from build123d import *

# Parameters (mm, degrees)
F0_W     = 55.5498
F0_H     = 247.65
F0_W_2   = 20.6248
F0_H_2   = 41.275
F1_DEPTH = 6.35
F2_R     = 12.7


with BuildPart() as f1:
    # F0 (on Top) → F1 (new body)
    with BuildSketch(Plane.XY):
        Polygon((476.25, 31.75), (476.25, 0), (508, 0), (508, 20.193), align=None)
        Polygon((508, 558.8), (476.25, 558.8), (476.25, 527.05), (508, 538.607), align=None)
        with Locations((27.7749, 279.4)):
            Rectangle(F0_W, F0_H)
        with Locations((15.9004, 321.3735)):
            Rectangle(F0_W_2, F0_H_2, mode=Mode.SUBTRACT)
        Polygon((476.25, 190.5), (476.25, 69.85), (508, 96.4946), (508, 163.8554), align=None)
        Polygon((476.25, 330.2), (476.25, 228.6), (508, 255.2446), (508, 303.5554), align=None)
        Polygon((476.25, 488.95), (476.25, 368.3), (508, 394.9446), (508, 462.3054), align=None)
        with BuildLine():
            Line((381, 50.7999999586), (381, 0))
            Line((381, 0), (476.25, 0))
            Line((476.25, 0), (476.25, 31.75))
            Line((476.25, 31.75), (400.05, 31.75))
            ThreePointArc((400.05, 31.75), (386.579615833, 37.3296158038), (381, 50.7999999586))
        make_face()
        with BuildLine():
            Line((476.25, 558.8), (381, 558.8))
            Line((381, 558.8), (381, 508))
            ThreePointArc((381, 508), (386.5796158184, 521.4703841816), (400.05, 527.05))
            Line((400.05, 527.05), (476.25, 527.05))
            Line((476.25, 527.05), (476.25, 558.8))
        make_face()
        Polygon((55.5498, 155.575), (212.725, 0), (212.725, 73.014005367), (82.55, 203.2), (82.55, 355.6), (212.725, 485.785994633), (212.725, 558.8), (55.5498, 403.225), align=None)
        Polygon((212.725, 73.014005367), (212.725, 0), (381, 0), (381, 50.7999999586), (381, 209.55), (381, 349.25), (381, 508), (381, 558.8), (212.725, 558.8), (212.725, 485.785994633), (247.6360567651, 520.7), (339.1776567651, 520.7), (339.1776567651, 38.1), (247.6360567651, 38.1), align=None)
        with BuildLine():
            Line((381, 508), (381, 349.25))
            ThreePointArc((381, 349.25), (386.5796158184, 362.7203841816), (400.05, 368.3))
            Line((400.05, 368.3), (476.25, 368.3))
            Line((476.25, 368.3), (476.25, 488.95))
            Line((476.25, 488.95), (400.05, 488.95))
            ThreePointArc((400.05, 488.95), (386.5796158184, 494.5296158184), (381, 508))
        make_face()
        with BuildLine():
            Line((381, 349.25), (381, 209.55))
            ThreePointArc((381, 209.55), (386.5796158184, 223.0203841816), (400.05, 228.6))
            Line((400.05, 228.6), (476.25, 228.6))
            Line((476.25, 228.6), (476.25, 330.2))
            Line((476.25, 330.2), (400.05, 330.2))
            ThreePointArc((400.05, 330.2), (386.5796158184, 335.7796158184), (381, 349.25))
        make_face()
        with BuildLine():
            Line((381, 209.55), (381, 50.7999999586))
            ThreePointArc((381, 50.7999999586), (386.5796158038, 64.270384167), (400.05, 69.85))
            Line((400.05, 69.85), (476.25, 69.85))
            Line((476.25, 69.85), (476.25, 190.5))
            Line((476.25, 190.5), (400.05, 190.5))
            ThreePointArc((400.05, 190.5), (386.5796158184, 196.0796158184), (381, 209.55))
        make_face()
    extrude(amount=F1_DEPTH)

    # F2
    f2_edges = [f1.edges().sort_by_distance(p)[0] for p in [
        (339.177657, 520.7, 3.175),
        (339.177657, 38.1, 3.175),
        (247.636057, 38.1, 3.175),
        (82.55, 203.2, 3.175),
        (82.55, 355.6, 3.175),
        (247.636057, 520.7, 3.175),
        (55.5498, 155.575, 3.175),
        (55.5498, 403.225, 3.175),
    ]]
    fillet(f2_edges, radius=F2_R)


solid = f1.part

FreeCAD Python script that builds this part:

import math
import FreeCAD as App
import Part
import Sketcher
from FreeCAD import Vector
Q = App.Units.Quantity


def edges_at(feature, points):
    """Names of the edges that pass closest to the given points."""
    edges = feature.Shape.Edges
    near = lambda p: min(range(len(edges)), key=lambda i: edges[i].distToShape(Part.Vertex(*p))[0])
    return sorted({f"Edge{near(p) + 1}" for p in points})

doc = App.newDocument("Part")
body = doc.addObject("PartDesign::Body", "Body")

# Sketch on XY plane
sketch1 = doc.addObject("Sketcher::SketchObject", "Sketch")
body.addObject(sketch1)
sketch1.AttachmentSupport = (doc.XY_Plane, [""])
sketch1.MapMode = "FlatFace"
sketch1.addGeometry([
    Part.LineSegment(Vector(508, 0, 0), Vector(508, 20.193, 0)),  # 0
    Part.LineSegment(Vector(508, 20.193, 0), Vector(476.25, 31.75, 0)),  # 1
    Part.LineSegment(Vector(476.25, 31.75, 0), Vector(400.05, 31.75, 0)),  # 2
    Part.ArcOfCircle(Part.Circle(Vector(400.05, 50.8, 0), Vector(0, 0, 1), 19.05), math.radians(-180), math.radians(-90)),  # 3
    Part.ArcOfCircle(Part.Circle(Vector(400.05, 50.8, 0), Vector(0, 0, 1), 19.05), math.radians(90), math.radians(180)),  # 4
    Part.LineSegment(Vector(400.05, 69.85, 0), Vector(476.25, 69.85, 0)),  # 5
    Part.LineSegment(Vector(476.25, 69.85, 0), Vector(508, 96.4946, 0)),  # 6
    Part.LineSegment(Vector(508, 96.4946, 0), Vector(508, 163.8554, 0)),  # 7
    Part.LineSegment(Vector(508, 163.8554, 0), Vector(476.25, 190.5, 0)),  # 8
    Part.LineSegment(Vector(476.25, 190.5, 0), Vector(400.05, 190.5, 0)),  # 9
    Part.ArcOfCircle(Part.Circle(Vector(400.05, 209.55, 0), Vector(0, 0, 1), 19.05), math.radians(180), math.radians(270)),  # 10
    Part.ArcOfCircle(Part.Circle(Vector(400.05, 209.55, 0), Vector(0, 0, 1), 19.05), math.radians(90), math.radians(180)),  # 11
    Part.LineSegment(Vector(400.05, 228.6, 0), Vector(476.25, 228.6, 0)),  # 12
    Part.LineSegment(Vector(476.25, 228.6, 0), Vector(508, 255.2446, 0)),  # 13
    Part.LineSegment(Vector(508, 255.2446, 0), Vector(508, 303.5554, 0)),  # 14
    Part.LineSegment(Vector(508, 303.5554, 0), Vector(476.25, 330.2, 0)),  # 15
    Part.LineSegment(Vector(476.25, 330.2, 0), Vector(400.05, 330.2, 0)),  # 16
    Part.ArcOfCircle(Part.Circle(Vector(400.05, 349.25, 0), Vector(0, 0, 1), 19.05), math.radians(180), math.radians(270)),  # 17
    Part.ArcOfCircle(Part.Circle(Vector(400.05, 349.25, 0), Vector(0, 0, 1), 19.05), math.radians(90), math.radians(180)),  # 18
    Part.LineSegment(Vector(400.05, 368.3, 0), Vector(476.25, 368.3, 0)),  # 19
    Part.LineSegment(Vector(476.25, 368.3, 0), Vector(508, 394.9446, 0)),  # 20
    Part.LineSegment(Vector(508, 394.9446, 0), Vector(508, 462.3054, 0)),  # 21
    Part.LineSegment(Vector(508, 462.3054, 0), Vector(476.25, 488.95, 0)),  # 22
    Part.LineSegment(Vector(476.25, 488.95, 0), Vector(400.05, 488.95, 0)),  # 23
    Part.ArcOfCircle(Part.Circle(Vector(400.05, 508, 0), Vector(0, 0, 1), 19.05), math.radians(180), math.radians(270)),  # 24
    Part.ArcOfCircle(Part.Circle(Vector(400.05, 508, 0), Vector(0, 0, 1), 19.05), math.radians(90), math.radians(180)),  # 25
    Part.LineSegment(Vector(400.05, 527.05, 0), Vector(476.25, 527.05, 0)),  # 26
    Part.LineSegment(Vector(476.25, 527.05, 0), Vector(508, 538.607, 0)),  # 27
    Part.LineSegment(Vector(508, 538.607, 0), Vector(508, 558.8, 0)),  # 28
    Part.LineSegment(Vector(508, 558.8, 0), Vector(212.725, 558.8, 0)),  # 29
    Part.LineSegment(Vector(212.725, 558.8, 0), Vector(55.5498, 403.225, 0)),  # 30
    Part.LineSegment(Vector(55.5498, 403.225, 0), Vector(0, 403.225, 0)),  # 31
    Part.LineSegment(Vector(0, 403.225, 0), Vector(0, 155.575, 0)),  # 32
    Part.LineSegment(Vector(0, 155.575, 0), Vector(55.5498, 155.575, 0)),  # 33
    Part.LineSegment(Vector(55.5498, 155.575, 0), Vector(212.725, 0, 0)),  # 34
    Part.LineSegment(Vector(212.725, 0, 0), Vector(508, 0, 0)),  # 35
    Part.LineSegment(Vector(247.636057, 38.1, 0), Vector(82.55, 203.2, 0)),  # 36
    Part.LineSegment(Vector(82.55, 203.2, 0), Vector(82.55, 355.6, 0)),  # 37
    Part.LineSegment(Vector(82.55, 355.6, 0), Vector(247.636057, 520.7, 0)),  # 38
    Part.LineSegment(Vector(247.636057, 520.7, 0), Vector(339.177657, 520.7, 0)),  # 39
    Part.LineSegment(Vector(339.177657, 520.7, 0), Vector(339.177657, 38.1, 0)),  # 40
    Part.LineSegment(Vector(339.177657, 38.1, 0), Vector(247.636057, 38.1, 0)),  # 41
    Part.LineSegment(Vector(26.2128, 342.011, 0), Vector(26.2128, 300.736, 0)),  # 42
    Part.LineSegment(Vector(26.2128, 300.736, 0), Vector(5.588, 300.736, 0)),  # 43
    Part.LineSegment(Vector(5.588, 300.736, 0), Vector(5.588, 342.011, 0)),  # 44
    Part.LineSegment(Vector(5.588, 342.011, 0), Vector(26.2128, 342.011, 0)),  # 45
], False)
sketch1.addConstraint([
    Sketcher.Constraint("Coincident", 0, 2, 1, 1),
    Sketcher.Constraint("Coincident", 1, 2, 2, 1),
    Sketcher.Constraint("Tangent", 2, 2, 3, 2),
    Sketcher.Constraint("Tangent", 3, 1, 4, 2),
    Sketcher.Constraint("Tangent", 4, 1, 5, 1),
    Sketcher.Constraint("Coincident", 5, 2, 6, 1),
    Sketcher.Constraint("Coincident", 6, 2, 7, 1),
    Sketcher.Constraint("Coincident", 7, 2, 8, 1),
    Sketcher.Constraint("Coincident", 8, 2, 9, 1),
    Sketcher.Constraint("Tangent", 9, 2, 10, 2),
    Sketcher.Constraint("Tangent", 10, 1, 11, 2),
    Sketcher.Constraint("Tangent", 11, 1, 12, 1),
    Sketcher.Constraint("Coincident", 12, 2, 13, 1),
    Sketcher.Constraint("Coincident", 13, 2, 14, 1),
    Sketcher.Constraint("Coincident", 14, 2, 15, 1),
    Sketcher.Constraint("Coincident", 15, 2, 16, 1),
    Sketcher.Constraint("Tangent", 16, 2, 17, 2),
    Sketcher.Constraint("Tangent", 17, 1, 18, 2),
    Sketcher.Constraint("Tangent", 18, 1, 19, 1),
    Sketcher.Constraint("Coincident", 19, 2, 20, 1),
    Sketcher.Constraint("Coincident", 20, 2, 21, 1),
    Sketcher.Constraint("Coincident", 21, 2, 22, 1),
    Sketcher.Constraint("Coincident", 22, 2, 23, 1),
    Sketcher.Constraint("Tangent", 23, 2, 24, 2),
    Sketcher.Constraint("Tangent", 24, 1, 25, 2),
    Sketcher.Constraint("Tangent", 25, 1, 26, 1),
    Sketcher.Constraint("Coincident", 26, 2, 27, 1),
    Sketcher.Constraint("Coincident", 27, 2, 28, 1),
    Sketcher.Constraint("Coincident", 28, 2, 29, 1),
    Sketcher.Constraint("Coincident", 29, 2, 30, 1),
    Sketcher.Constraint("Coincident", 30, 2, 31, 1),
    Sketcher.Constraint("Coincident", 31, 2, 32, 1),
    Sketcher.Constraint("Coincident", 32, 2, 33, 1),
    Sketcher.Constraint("Coincident", 33, 2, 34, 1),
    Sketcher.Constraint("Coincident", 34, 2, 35, 1),
    Sketcher.Constraint("Coincident", 35, 2, 0, 1),
    Sketcher.Constraint("Coincident", 36, 2, 37, 1),
    Sketcher.Constraint("Coincident", 37, 2, 38, 1),
    Sketcher.Constraint("Coincident", 38, 2, 39, 1),
    Sketcher.Constraint("Coincident", 39, 2, 40, 1),
    Sketcher.Constraint("Coincident", 40, 2, 41, 1),
    Sketcher.Constraint("Coincident", 41, 2, 36, 1),
    Sketcher.Constraint("Coincident", 42, 2, 43, 1),
    Sketcher.Constraint("Coincident", 43, 2, 44, 1),
    Sketcher.Constraint("Coincident", 44, 2, 45, 1),
    Sketcher.Constraint("Coincident", 45, 2, 42, 1),
    Sketcher.Constraint("Vertical", 0),
    Sketcher.Constraint("Horizontal", 2),
    Sketcher.Constraint("Horizontal", 5),
    Sketcher.Constraint("Vertical", 7),
    Sketcher.Constraint("Horizontal", 9),
    Sketcher.Constraint("Horizontal", 12),
    Sketcher.Constraint("Vertical", 14),
    Sketcher.Constraint("Horizontal", 16),
    Sketcher.Constraint("Horizontal", 19),
    Sketcher.Constraint("Vertical", 21),
    Sketcher.Constraint("Horizontal", 23),
    Sketcher.Constraint("Horizontal", 26),
    Sketcher.Constraint("Vertical", 28),
    Sketcher.Constraint("Horizontal", 29),
    Sketcher.Constraint("Horizontal", 31),
    Sketcher.Constraint("Vertical", 32),
    Sketcher.Constraint("Horizontal", 33),
    Sketcher.Constraint("Horizontal", 35),
    Sketcher.Constraint("Vertical", 37),
    Sketcher.Constraint("Horizontal", 39),
    Sketcher.Constraint("Vertical", 40),
    Sketcher.Constraint("Horizontal", 41),
    Sketcher.Constraint("Vertical", 42),
    Sketcher.Constraint("Horizontal", 43),
    Sketcher.Constraint("Vertical", 44),
    Sketcher.Constraint("Horizontal", 45),
    Sketcher.Constraint("Equal", 3, 4),
    Sketcher.Constraint("Equal", 4, 10),
    Sketcher.Constraint("Equal", 10, 11),
    Sketcher.Constraint("Equal", 11, 17),
    Sketcher.Constraint("Equal", 17, 18),
    Sketcher.Constraint("Equal", 18, 24),
    Sketcher.Constraint("Equal", 24, 25),
    Sketcher.Constraint("PointOnObject", 31, 2, -2),
    Sketcher.Constraint("PointOnObject", 34, 2, -1),
    Sketcher.Constraint("Parallel", 6, 13),
    Sketcher.Constraint("Parallel", 8, 15),
    Sketcher.Constraint("Parallel", 13, 20),
    Sketcher.Constraint("Parallel", 15, 22),
    Sketcher.Constraint("Horizontal", 4, 3, 3, 1),
    Sketcher.Constraint("Horizontal", 11, 3, 10, 1),
    Sketcher.Constraint("Horizontal", 18, 3, 17, 1),
    Sketcher.Constraint("Horizontal", 25, 3, 24, 1),
    Sketcher.Constraint("Vertical", 4, 3, 10, 3),
    Sketcher.Constraint("Vertical", 11, 3, 17, 3),
    Sketcher.Constraint("Vertical", 18, 3, 24, 3),
    Sketcher.Constraint("Vertical", 1, 2, 5, 2),
    Sketcher.Constraint("Vertical", 0, 2, 6, 2),
    Sketcher.Constraint("Vertical", 5, 2, 8, 2),
    Sketcher.Constraint("Vertical", 8, 2, 12, 2),
    Sketcher.Constraint("Vertical", 7, 2, 13, 2),
    Sketcher.Constraint("Vertical", 12, 2, 15, 2),
    Sketcher.Constraint("Vertical", 15, 2, 19, 2),
    Sketcher.Constraint("Vertical", 14, 2, 20, 2),
    Sketcher.Constraint("Vertical", 19, 2, 22, 2),
    Sketcher.Constraint("Vertical", 22, 2, 26, 2),
    Sketcher.Constraint("Vertical", 21, 2, 27, 2),
    Sketcher.Constraint("Vertical", 30, 2, 33, 2),
    Sketcher.Constraint("Vertical", 29, 2, 34, 2),
    Sketcher.Constraint("Vertical", 38, 2, 41, 2),
    Sketcher.Constraint("Equal", 7, 21),
    Sketcher.Constraint("Equal", 0, 28),
    Sketcher.Constraint("Equal", 6, 8),
    Sketcher.Constraint("Equal", 1, 27),
    Sketcher.Constraint("Equal", 30, 34),
    Sketcher.Constraint("Equal", 36, 38),
    Sketcher.Constraint("DistanceX", 2, 2, 2, 1, Q("3 in")),
    Sketcher.Constraint("DistanceY", 37, 1, 37, 2, Q("6 in")),
    Sketcher.Constraint("DistanceY", 40, 2, 40, 1, Q("19 in")),
    Sketcher.Constraint("Radius", 3, Q("0.75 in")),
    Sketcher.Constraint("DistanceY", -1, 1, 3, 3, Q("2 in")),
    Sketcher.Constraint("DistanceY", -1, 1, 24, 3, Q("20 in")),
    Sketcher.Constraint("DistanceX", -1, 1, 0, 2, Q("20 in")),
    Sketcher.Constraint("DistanceX", -1, 1, 3, 1, Q("15 in")),
    Sketcher.Constraint("DistanceY", -1, 1, 11, 1, Q("9 in")),
    Sketcher.Constraint("DistanceY", -1, 1, 36, 2, Q("8 in")),
    Sketcher.Constraint("DistanceY", 32, 2, 32, 1, Q("9.75 in")),
    Sketcher.Constraint("DistanceX", 29, 2, 29, 1, Q("11.625 in")),
    Sketcher.Constraint("DistanceX", 31, 2, 31, 1, Q("2.187 in")),
    Sketcher.Constraint("DistanceX", 39, 1, 39, 2, Q("3.604 in")),
    Sketcher.Constraint("DistanceX", 43, 2, 43, 1, Q("0.812 in")),
    Sketcher.Constraint("DistanceY", 0, 1, 0, 2, Q("0.795 in")),
    Sketcher.Constraint("DistanceY", 7, 1, 7, 2, Q("2.652 in")),
    Sketcher.Constraint("DistanceY", 42, 2, 42, 1, Q("1.625 in")),
    Sketcher.Constraint("DistanceX", -1, 1, 36, 2, Q("3.25 in")),
    Sketcher.Constraint("DistanceY", -1, 1, 42, 2, Q("11.84 in")),
    Sketcher.Constraint("DistanceX", -1, 1, 43, 2, Q("0.22 in")),
    Sketcher.Constraint("Distance", 36, Q("9.192 in")),
])
pad1 = doc.addObject("PartDesign::Pad", "Pad")
body.addObject(pad1)
pad1.Profile = sketch1
pad1.Length = Q("0.25 in")
doc.recompute()

fillet = doc.addObject("PartDesign::Fillet", "Fillet")
body.addObject(fillet)
fillet.Base = (pad1, edges_at(pad1, [
    (339.178, 520.7, 3.175),
    (339.178, 38.1, 3.175),
    (247.636, 38.1, 3.175),
    (82.55, 203.2, 3.175),
    (82.55, 355.6, 3.175),
    (247.636, 520.7, 3.175),
    (55.55, 155.575, 3.175),
    (55.55, 403.225, 3.175),
]))
fillet.Radius = Q("0.5 in")

doc.recompute()
